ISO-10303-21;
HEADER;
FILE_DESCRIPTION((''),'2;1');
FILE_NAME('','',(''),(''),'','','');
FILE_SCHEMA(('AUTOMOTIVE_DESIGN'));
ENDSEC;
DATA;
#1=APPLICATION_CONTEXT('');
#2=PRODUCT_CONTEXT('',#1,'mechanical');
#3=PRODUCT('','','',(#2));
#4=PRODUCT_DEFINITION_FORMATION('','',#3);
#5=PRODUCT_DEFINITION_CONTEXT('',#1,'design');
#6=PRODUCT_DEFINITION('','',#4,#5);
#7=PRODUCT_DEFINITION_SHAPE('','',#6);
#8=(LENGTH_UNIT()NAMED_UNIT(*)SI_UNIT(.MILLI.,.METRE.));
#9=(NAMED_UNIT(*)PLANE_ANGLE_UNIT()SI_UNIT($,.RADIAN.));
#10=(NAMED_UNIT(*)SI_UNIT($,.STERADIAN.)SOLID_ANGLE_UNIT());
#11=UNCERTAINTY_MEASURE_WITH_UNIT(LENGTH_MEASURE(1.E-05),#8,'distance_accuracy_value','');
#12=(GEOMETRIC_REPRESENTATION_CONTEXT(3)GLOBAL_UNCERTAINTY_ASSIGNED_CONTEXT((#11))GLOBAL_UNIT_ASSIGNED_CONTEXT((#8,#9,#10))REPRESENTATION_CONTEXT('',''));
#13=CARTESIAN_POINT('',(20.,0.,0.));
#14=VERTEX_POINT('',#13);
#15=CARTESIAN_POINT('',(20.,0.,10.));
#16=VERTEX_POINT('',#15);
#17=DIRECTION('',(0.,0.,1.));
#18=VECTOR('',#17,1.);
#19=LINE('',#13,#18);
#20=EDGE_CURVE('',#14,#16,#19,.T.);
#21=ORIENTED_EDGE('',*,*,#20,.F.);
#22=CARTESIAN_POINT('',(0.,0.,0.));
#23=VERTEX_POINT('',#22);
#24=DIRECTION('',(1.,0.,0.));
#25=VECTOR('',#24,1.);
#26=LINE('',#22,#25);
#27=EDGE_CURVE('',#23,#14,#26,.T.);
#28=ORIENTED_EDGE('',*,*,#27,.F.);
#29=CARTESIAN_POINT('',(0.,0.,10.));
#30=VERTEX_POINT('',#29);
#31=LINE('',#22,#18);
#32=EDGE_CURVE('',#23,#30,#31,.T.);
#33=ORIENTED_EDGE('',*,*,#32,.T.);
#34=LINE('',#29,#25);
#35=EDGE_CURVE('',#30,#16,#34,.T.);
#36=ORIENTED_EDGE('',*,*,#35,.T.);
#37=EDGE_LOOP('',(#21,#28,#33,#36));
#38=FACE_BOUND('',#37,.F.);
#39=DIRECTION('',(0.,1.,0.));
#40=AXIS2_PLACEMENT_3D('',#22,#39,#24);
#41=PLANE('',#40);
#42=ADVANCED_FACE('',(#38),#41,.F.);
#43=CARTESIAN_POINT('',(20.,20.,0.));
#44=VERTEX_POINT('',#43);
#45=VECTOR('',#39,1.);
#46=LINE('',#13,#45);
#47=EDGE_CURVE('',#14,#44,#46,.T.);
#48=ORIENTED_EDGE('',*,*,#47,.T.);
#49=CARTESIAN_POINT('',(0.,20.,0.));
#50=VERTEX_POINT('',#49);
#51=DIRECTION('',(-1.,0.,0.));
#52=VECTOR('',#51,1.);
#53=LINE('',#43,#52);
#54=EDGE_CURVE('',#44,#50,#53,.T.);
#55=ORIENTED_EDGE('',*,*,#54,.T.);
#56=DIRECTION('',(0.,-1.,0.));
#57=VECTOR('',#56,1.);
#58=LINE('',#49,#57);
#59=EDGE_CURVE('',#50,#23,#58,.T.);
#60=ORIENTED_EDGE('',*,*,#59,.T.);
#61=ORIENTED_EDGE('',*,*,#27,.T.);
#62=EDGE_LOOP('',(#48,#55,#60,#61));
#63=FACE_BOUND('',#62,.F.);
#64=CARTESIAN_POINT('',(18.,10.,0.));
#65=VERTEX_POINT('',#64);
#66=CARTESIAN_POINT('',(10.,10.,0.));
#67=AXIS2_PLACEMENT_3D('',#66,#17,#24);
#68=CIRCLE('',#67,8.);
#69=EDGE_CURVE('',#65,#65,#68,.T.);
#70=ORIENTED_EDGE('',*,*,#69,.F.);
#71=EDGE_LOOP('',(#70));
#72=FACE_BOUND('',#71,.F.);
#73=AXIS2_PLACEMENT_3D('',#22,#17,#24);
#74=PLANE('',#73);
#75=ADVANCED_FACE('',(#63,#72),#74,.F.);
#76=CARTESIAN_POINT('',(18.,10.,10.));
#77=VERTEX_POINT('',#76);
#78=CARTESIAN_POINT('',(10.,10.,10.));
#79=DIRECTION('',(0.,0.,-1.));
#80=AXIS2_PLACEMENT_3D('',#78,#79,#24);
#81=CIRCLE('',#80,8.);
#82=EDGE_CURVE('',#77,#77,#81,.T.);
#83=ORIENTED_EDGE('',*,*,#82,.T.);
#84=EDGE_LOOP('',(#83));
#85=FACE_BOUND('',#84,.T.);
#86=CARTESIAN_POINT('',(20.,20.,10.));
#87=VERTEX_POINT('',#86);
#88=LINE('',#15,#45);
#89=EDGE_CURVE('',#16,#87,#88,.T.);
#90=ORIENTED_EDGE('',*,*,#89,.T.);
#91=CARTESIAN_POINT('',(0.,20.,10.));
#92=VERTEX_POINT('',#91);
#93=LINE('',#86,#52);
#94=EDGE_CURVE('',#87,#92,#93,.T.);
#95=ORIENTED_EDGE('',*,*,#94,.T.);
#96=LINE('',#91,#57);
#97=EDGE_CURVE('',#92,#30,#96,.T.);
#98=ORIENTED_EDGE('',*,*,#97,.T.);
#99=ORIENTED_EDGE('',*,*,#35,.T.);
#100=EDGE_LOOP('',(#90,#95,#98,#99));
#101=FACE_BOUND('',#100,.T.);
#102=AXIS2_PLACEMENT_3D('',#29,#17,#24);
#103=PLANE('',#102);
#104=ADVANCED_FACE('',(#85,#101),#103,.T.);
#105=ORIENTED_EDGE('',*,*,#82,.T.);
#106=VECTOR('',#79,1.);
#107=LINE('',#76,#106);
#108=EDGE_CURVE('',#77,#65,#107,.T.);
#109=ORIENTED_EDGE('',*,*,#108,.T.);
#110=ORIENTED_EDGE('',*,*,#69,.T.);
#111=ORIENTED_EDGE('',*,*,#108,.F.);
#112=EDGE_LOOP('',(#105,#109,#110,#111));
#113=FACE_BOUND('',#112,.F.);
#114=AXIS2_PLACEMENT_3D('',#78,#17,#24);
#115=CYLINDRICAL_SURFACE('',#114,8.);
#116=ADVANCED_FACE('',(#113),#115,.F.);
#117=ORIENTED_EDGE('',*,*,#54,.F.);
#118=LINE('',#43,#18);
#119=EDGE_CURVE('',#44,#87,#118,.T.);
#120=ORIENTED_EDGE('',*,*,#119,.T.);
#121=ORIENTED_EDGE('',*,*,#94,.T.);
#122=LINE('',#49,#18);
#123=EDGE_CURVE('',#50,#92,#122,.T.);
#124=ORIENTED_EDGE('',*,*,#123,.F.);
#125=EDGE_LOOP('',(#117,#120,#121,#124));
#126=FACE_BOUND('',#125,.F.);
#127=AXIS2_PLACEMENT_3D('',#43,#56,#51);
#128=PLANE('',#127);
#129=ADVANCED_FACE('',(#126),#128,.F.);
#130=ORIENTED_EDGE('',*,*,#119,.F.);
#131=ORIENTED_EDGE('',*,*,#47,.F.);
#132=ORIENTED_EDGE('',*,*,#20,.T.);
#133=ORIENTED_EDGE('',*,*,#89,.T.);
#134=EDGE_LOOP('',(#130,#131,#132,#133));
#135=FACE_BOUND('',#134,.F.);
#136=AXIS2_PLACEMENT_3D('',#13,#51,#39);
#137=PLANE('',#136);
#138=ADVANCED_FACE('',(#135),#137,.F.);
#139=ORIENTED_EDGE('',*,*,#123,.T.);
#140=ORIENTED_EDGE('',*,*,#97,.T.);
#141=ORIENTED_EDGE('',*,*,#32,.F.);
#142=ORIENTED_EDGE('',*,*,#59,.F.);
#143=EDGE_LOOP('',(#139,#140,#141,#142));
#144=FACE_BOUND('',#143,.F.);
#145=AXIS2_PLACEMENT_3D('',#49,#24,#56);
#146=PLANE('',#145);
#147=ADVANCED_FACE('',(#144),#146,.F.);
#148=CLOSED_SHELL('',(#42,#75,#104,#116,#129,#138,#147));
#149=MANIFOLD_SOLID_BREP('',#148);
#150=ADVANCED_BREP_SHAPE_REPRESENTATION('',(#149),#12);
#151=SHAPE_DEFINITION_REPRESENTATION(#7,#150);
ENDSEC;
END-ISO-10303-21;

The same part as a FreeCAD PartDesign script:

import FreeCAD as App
import Part
import Sketcher


def add_polygon(sketch, points):
    """Adds a closed chain of lines whose ends are joined by coincident constraints."""
    first, n = sketch.GeometryCount, len(points)
    for a, b in zip(points, points[1:] + points[:1]):
        sketch.addGeometry(Part.LineSegment(App.Vector(*a, 0), App.Vector(*b, 0)), False)
    for i in range(n):
        sketch.addConstraint(Sketcher.Constraint("Coincident", first + i, 2, first + (i + 1) % n, 1))

doc = App.newDocument("Part")
params = doc.addObject("Spreadsheet::Sheet", "Params")
for row, (alias, value) in enumerate([
    ("sketch1_width", "20 mm"),
    ("pad1_length", "10 mm"),
    ("sketch2_diameter", "16 mm"),
], start=1):
    params.set(f"A{row}", alias)
    params.set(f"B{row}", "=" + value)
    params.setAlias(f"B{row}", alias)

body = doc.addObject("PartDesign::Body", "Body")

sketch1 = body.newObject("Sketcher::SketchObject", "Sketch")
sketch1.AttachmentSupport = (doc.getObject("XY_Plane"), [""])
sketch1.MapMode = "FlatFace"
add_polygon(sketch1, [(0, 20), (0, 0), (20, 0), (20, 20)])
sketch1.addConstraint([
    Sketcher.Constraint("Vertical", 0),
    Sketcher.Constraint("Horizontal", 1),
    Sketcher.Constraint("Vertical", 2),
    Sketcher.Constraint("Horizontal", 3),
    Sketcher.Constraint("Coincident", 0, 2, -1, 1),
    Sketcher.Constraint("Equal", 3, 0),
    Sketcher.Constraint("DistanceX", 1, 1, 1, 2, 20.0),
])
sketch1.setExpression("Constraints[10]", "Params.sketch1_width")
pad1 = body.newObject("PartDesign::Pad", "Pad")
pad1.Profile = sketch1
pad1.setExpression("Length", "Params.pad1_length")

sketch2 = body.newObject("Sketcher::SketchObject", "Sketch001")
sketch2.AttachmentSupport = (doc.getObject("XY_Plane"), [""])
sketch2.MapMode = "FlatFace"
sketch2.AttachmentOffset = App.Placement(App.Vector(0, 0, 10), App.Rotation())
sketch2.addGeometry(Part.Circle(App.Vector(10, 10, 0), App.Vector(0, 0, 1), 8), False)
sketch2.addConstraint([
    Sketcher.Constraint("Diameter", 0, 16.0),
    Sketcher.Constraint("DistanceX", -1, 1, 0, 3, 10.0),
    Sketcher.Constraint("DistanceY", -1, 1, 0, 3, 10.0),
])
sketch2.setExpression("Constraints[0]", "Params.sketch2_diameter")
pocket1 = body.newObject("PartDesign::Pocket", "Pocket")
pocket1.Profile = sketch2
pocket1.Type = "ThroughAll"

doc.recompute()
